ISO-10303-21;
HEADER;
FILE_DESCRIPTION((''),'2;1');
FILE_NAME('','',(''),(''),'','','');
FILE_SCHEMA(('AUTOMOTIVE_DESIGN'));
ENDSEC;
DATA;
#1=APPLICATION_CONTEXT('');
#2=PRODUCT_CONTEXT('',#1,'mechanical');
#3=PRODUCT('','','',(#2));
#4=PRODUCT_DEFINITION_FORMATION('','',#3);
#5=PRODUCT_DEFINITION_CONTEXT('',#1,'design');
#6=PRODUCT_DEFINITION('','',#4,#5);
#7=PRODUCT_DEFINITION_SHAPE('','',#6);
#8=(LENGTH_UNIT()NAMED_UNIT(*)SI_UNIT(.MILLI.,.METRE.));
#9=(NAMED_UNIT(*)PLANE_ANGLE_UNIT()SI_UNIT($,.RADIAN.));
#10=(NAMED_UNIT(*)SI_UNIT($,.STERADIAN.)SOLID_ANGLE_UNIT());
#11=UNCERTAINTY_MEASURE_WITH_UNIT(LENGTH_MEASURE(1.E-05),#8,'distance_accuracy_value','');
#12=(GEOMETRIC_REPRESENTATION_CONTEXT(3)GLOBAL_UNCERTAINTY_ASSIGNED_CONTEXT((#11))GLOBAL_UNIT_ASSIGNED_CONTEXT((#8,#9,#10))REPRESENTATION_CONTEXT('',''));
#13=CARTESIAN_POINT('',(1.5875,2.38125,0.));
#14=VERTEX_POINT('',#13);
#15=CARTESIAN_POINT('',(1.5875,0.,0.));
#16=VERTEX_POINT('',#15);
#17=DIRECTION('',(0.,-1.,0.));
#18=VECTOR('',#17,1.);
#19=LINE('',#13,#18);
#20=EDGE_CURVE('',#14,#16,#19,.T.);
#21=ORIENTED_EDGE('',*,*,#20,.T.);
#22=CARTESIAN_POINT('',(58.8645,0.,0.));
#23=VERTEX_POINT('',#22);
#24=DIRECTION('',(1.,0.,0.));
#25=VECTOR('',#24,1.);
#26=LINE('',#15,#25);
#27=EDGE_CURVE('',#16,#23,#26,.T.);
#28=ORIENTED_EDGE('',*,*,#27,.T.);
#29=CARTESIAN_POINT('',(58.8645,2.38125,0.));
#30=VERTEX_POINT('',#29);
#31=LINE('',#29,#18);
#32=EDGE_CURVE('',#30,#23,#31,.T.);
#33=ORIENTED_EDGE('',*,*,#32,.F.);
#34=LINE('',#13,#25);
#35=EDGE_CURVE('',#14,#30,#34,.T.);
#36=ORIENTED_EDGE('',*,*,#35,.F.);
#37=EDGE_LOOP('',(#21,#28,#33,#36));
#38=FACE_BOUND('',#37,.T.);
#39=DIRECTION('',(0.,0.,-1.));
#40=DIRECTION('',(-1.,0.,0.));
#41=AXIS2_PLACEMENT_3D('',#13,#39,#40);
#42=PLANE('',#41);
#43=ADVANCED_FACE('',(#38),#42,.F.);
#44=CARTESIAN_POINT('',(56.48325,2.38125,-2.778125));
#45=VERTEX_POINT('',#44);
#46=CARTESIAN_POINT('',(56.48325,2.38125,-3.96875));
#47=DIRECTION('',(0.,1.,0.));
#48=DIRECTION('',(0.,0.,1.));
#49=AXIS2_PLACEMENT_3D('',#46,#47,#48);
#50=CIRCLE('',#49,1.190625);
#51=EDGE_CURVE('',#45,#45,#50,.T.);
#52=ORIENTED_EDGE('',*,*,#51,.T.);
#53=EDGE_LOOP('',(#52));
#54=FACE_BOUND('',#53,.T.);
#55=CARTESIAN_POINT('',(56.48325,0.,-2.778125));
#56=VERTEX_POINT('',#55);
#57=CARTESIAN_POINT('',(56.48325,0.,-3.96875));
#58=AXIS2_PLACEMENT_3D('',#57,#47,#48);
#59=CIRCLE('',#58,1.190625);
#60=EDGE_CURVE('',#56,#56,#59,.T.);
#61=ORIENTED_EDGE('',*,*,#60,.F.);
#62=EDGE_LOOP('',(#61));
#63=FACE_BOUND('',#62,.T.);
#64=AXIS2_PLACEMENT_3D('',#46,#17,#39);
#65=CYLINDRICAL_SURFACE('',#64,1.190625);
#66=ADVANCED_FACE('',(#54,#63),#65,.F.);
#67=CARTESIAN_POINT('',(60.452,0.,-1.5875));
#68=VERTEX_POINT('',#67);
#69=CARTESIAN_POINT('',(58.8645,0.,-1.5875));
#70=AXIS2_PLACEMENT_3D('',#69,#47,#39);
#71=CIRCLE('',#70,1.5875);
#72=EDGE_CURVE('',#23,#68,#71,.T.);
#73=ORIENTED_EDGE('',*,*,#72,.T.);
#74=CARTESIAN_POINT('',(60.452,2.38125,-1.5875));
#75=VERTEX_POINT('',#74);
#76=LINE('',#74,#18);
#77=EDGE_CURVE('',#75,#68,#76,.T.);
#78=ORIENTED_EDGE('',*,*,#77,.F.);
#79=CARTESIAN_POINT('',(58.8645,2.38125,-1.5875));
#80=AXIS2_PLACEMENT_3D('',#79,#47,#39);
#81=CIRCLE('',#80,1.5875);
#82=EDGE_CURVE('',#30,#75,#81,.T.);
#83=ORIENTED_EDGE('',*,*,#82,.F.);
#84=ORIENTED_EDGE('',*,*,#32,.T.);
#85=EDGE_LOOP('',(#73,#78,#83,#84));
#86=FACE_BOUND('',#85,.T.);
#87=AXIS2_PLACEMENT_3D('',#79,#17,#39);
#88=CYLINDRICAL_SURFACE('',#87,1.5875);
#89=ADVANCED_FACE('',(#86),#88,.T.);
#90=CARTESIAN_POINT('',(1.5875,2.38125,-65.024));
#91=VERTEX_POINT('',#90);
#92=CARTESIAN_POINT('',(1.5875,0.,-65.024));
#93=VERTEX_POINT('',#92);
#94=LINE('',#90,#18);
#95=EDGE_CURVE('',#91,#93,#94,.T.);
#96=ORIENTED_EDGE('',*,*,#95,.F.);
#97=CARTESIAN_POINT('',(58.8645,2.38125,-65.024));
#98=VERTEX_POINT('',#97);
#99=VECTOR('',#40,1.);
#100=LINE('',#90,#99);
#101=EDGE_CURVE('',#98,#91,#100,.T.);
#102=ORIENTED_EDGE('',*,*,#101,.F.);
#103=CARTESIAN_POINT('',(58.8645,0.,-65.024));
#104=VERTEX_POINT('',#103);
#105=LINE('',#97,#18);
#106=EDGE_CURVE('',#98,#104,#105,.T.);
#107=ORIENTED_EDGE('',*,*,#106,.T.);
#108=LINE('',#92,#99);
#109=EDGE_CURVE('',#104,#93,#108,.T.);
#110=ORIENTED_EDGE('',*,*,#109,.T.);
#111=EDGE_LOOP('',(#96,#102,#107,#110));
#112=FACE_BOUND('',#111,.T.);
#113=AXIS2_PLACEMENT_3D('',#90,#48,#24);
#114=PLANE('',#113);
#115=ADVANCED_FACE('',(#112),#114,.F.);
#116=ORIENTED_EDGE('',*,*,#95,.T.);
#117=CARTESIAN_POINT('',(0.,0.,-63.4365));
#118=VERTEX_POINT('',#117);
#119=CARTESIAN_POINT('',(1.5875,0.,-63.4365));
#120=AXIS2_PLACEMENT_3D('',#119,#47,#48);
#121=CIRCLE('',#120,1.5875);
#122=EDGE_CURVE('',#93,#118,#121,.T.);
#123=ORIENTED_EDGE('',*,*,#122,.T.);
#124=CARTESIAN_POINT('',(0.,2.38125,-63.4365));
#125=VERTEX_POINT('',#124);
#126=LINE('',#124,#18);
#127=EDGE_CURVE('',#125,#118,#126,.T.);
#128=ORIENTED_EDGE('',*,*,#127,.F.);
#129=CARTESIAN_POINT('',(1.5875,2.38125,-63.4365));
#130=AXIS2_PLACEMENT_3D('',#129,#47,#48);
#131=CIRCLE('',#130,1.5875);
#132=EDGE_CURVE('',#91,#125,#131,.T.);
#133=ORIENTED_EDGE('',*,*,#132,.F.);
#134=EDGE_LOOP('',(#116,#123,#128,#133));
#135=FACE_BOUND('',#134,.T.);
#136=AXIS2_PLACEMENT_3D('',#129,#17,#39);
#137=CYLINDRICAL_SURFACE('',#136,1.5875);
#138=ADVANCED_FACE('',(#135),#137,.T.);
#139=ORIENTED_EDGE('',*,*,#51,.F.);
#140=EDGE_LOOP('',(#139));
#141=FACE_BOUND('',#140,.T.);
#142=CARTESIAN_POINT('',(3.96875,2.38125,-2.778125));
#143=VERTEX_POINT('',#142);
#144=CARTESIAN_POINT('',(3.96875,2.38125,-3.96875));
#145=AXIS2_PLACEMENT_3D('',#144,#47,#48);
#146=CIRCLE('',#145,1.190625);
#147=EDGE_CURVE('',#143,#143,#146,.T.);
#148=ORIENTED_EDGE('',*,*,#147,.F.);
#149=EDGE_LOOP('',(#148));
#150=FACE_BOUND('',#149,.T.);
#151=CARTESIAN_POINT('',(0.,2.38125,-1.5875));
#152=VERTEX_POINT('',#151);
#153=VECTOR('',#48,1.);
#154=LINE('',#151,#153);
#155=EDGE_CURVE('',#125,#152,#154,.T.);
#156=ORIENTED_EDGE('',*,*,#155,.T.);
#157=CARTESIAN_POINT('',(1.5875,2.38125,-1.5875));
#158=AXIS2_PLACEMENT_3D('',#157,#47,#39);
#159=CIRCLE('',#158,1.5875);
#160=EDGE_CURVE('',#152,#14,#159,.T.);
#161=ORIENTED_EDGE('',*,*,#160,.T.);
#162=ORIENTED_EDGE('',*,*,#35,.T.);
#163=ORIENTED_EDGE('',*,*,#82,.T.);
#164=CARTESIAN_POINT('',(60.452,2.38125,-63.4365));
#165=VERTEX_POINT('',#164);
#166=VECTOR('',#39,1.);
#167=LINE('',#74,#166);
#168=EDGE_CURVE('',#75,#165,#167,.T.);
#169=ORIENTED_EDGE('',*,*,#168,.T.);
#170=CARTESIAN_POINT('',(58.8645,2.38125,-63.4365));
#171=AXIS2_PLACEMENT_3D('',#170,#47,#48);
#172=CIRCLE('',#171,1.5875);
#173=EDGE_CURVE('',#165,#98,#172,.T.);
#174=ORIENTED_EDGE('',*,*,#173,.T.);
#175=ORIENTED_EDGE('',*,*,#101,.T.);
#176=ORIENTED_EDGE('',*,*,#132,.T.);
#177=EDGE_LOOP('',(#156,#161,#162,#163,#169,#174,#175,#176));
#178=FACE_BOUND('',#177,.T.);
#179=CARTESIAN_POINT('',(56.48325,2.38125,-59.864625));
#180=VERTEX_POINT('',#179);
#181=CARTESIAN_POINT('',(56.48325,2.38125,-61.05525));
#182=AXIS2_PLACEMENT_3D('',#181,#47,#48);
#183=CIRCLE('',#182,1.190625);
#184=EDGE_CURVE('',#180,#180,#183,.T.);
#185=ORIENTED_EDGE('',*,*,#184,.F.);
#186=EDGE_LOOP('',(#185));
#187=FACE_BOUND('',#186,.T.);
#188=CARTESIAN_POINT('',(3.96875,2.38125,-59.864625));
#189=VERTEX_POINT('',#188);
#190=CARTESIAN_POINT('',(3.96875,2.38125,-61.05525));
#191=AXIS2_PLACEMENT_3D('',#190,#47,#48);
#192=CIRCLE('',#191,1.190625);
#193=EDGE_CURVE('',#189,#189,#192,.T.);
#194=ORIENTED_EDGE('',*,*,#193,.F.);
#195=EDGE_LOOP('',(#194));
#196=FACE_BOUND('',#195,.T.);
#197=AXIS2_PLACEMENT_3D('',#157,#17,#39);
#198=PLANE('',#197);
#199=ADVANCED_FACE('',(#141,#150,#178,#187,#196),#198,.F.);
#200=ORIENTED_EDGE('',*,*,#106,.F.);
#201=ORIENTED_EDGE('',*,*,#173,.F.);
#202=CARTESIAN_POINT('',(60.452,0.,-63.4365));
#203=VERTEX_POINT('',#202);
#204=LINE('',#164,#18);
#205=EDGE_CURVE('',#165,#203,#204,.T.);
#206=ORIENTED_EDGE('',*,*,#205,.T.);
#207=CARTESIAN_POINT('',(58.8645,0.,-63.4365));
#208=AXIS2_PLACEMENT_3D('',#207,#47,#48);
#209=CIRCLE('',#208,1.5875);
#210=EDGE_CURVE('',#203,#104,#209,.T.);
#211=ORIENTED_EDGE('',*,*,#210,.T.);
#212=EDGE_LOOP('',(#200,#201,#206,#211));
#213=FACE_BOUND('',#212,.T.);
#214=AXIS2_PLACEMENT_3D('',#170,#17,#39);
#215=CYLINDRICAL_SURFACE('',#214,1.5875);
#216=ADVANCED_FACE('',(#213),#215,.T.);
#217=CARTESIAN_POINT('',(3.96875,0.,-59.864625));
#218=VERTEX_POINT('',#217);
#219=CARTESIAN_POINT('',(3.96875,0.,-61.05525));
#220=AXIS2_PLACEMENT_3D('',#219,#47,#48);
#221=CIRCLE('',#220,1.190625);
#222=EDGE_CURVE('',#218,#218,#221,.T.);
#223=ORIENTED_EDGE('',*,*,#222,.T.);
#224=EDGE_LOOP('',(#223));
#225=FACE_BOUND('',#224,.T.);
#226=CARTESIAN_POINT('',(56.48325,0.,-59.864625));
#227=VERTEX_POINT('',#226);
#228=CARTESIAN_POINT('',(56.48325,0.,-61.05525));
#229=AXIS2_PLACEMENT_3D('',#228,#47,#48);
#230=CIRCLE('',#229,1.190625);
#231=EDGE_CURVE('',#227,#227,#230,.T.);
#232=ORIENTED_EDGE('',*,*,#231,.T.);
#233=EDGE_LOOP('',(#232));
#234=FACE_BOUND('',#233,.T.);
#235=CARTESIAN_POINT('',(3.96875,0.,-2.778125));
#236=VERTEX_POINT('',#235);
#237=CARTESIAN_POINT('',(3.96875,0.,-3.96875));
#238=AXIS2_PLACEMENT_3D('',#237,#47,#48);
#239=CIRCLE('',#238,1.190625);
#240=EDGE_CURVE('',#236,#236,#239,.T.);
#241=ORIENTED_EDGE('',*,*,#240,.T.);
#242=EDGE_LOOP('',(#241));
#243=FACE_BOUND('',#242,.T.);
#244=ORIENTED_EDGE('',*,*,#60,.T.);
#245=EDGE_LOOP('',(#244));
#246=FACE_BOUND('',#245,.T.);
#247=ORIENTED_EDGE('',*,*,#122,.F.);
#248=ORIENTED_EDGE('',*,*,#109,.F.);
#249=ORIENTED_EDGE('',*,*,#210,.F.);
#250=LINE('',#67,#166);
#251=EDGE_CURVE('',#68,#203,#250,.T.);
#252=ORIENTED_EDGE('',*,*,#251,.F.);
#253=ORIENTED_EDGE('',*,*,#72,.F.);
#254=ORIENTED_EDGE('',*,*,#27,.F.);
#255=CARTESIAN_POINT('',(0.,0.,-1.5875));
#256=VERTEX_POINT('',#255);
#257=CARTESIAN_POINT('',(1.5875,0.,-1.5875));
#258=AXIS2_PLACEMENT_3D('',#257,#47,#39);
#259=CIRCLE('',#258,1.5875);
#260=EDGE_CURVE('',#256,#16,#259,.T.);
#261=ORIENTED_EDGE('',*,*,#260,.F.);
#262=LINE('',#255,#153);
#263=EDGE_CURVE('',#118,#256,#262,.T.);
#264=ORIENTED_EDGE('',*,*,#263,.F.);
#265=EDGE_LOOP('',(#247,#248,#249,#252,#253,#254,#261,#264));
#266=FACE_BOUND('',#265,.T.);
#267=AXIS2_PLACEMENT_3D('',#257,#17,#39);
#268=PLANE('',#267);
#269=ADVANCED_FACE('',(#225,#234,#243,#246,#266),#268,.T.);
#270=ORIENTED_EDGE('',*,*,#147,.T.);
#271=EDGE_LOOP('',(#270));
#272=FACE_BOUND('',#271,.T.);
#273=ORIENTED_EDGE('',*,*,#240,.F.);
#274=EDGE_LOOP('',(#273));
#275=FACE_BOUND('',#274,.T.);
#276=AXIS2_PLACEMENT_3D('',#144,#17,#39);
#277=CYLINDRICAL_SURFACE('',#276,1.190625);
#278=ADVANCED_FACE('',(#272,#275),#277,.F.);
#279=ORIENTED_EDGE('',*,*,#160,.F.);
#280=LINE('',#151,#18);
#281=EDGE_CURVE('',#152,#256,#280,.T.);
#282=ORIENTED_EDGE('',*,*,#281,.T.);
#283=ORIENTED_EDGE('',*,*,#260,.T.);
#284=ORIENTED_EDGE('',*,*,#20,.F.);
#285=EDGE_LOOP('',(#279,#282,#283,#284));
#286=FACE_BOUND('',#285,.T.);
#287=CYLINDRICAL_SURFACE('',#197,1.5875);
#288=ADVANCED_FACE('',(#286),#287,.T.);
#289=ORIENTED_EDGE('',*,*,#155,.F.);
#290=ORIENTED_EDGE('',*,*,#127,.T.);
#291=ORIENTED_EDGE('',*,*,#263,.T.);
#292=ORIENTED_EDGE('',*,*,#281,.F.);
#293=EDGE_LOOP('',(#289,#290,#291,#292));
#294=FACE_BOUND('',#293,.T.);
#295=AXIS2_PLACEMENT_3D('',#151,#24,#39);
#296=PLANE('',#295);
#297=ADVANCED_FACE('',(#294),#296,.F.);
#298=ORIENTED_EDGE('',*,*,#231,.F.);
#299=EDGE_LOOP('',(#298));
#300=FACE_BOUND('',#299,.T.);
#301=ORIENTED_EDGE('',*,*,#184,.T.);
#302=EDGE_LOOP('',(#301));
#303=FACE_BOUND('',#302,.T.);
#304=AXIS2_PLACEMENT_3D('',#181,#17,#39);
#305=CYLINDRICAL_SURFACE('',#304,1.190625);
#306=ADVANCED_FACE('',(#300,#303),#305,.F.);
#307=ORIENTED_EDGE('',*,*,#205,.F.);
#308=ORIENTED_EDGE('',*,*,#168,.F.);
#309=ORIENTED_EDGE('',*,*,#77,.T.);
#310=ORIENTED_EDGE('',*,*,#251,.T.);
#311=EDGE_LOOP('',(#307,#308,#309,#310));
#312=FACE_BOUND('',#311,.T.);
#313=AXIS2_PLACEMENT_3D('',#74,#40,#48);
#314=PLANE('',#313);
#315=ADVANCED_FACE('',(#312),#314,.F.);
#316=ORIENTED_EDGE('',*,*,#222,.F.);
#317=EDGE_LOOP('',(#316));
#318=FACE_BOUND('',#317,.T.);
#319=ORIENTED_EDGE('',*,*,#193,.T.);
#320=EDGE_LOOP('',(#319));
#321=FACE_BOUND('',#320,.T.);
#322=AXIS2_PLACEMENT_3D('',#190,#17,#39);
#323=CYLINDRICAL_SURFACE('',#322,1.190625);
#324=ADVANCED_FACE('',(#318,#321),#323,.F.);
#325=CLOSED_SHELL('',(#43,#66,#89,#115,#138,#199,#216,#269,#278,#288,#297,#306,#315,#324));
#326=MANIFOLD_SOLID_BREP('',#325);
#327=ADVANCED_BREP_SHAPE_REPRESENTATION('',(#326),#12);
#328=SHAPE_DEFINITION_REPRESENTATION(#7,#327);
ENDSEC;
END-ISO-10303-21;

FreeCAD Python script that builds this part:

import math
import FreeCAD as App
import Part
import Sketcher
Q = App.Units.Quantity

doc = App.newDocument("Part")
params = doc.addObject("Spreadsheet::Sheet", "Params")
for row, (alias, value) in enumerate([
    ("sketch1_diameter", "0.09375 in"),
    ("sketch1_radius", "0.0625 in"),
    ("sketch1_width", "2.255 in"),
    ("sketch1_height", "2.435 in"),
    ("pad1_length", "0.09375 in"),
], start=1):
    params.set(f"A{row}", alias)
    params.set(f"B{row}", "=" + value)
    params.setAlias(f"B{row}", alias)

body = doc.addObject("PartDesign::Body", "Body")

# Sketch on XZ plane
sketch1 = body.newObject("Sketcher::SketchObject", "Sketch")
sketch1.AttachmentSupport = (doc.getObject("XZ_Plane"), [""])
sketch1.MapMode = "FlatFace"
sketch1.addGeometry([
    Part.LineSegment(App.Vector(1.5875, 0, 0), App.Vector(58.8645, 0, 0)),  # 0
    Part.ArcOfCircle(Part.Circle(App.Vector(58.8645, -1.5875, 0), App.Vector(0, 0, 1), 1.5875), math.radians(0), math.radians(90)),  # 1
    Part.LineSegment(App.Vector(60.452, -1.5875, 0), App.Vector(60.452, -63.4365, 0)),  # 2
    Part.ArcOfCircle(Part.Circle(App.Vector(58.8645, -63.4365, 0), App.Vector(0, 0, 1), 1.5875), math.radians(-90), math.radians(0)),  # 3
    Part.LineSegment(App.Vector(58.8645, -65.024, 0), App.Vector(1.5875, -65.024, 0)),  # 4
    Part.ArcOfCircle(Part.Circle(App.Vector(1.5875, -63.4365, 0), App.Vector(0, 0, 1), 1.5875), math.radians(180), math.radians(270)),  # 5
    Part.LineSegment(App.Vector(0, -63.4365, 0), App.Vector(0, -1.5875, 0)),  # 6
    Part.ArcOfCircle(Part.Circle(App.Vector(1.5875, -1.5875, 0), App.Vector(0, 0, 1), 1.5875), math.radians(90), math.radians(180)),  # 7
    Part.Circle(App.Vector(3.96875, -3.96875, 0), App.Vector(0, 0, 1), 1.190625),  # 8
    Part.Circle(App.Vector(56.48325, -3.96875, 0), App.Vector(0, 0, 1), 1.190625),  # 9
    Part.Circle(App.Vector(3.96875, -61.05525, 0), App.Vector(0, 0, 1), 1.190625),  # 10
    Part.Circle(App.Vector(56.48325, -61.05525, 0), App.Vector(0, 0, 1), 1.190625),  # 11
], False)
sketch1.addConstraint([
    Sketcher.Constraint("Tangent", 0, 2, 1, 2),
    Sketcher.Constraint("Tangent", 1, 1, 2, 1),
    Sketcher.Constraint("Tangent", 2, 2, 3, 2),
    Sketcher.Constraint("Tangent", 3, 1, 4, 1),
    Sketcher.Constraint("Tangent", 4, 2, 5, 2),
    Sketcher.Constraint("Tangent", 5, 1, 6, 1),
    Sketcher.Constraint("Tangent", 6, 2, 7, 2),
    Sketcher.Constraint("Tangent", 7, 1, 0, 1),
    Sketcher.Constraint("Horizontal", 0),
    Sketcher.Constraint("Vertical", 2),
    Sketcher.Constraint("Horizontal", 4),
    Sketcher.Constraint("Vertical", 6),
    Sketcher.Constraint("Equal", 1, 3),
    Sketcher.Constraint("Equal", 3, 5),
    Sketcher.Constraint("Equal", 5, 7),
    Sketcher.Constraint("Equal", 8, 9),
    Sketcher.Constraint("Equal", 9, 10),
    Sketcher.Constraint("Equal", 10, 11),
    Sketcher.Constraint("PointOnObject", 0, 2, -1),
    Sketcher.Constraint("PointOnObject", 5, 1, -2),
    Sketcher.Constraint("Horizontal", 8, 3, 9, 3),
    Sketcher.Constraint("Horizontal", 10, 3, 11, 3),
    Sketcher.Constraint("Vertical", 8, 3, 10, 3),
    Sketcher.Constraint("Vertical", 9, 3, 11, 3),
    Sketcher.Constraint("Diameter", 8, Q("0.09375 in")),
    Sketcher.Constraint("Radius", 1, Q("0.0625 in")),
    Sketcher.Constraint("DistanceX", 0, 1, 0, 2, Q("2.255 in")),
    Sketcher.Constraint("DistanceY", 2, 2, 2, 1, Q("2.435 in")),
    Sketcher.Constraint("DistanceX", -1, 1, 8, 3, Q("0.15625 in")),
    Sketcher.Constraint("DistanceY", 8, 3, -1, 1, Q("0.15625 in")),
    Sketcher.Constraint("DistanceX", 9, 3, 1, 3, Q("0.09375 in")),
    Sketcher.Constraint("DistanceY", 5, 3, 10, 3, Q("0.09375 in")),
])
sketch1.setExpression("Constraints[24]", "Params.sketch1_diameter")
sketch1.setExpression("Constraints[25]", "Params.sketch1_radius")
sketch1.setExpression("Constraints[26]", "Params.sketch1_width")
sketch1.setExpression("Constraints[27]", "Params.sketch1_height")
pad1 = body.newObject("PartDesign::Pad", "Pad")
pad1.Profile = sketch1
pad1.setExpression("Length", "Params.pad1_length")
pad1.Reversed = True

doc.recompute()
